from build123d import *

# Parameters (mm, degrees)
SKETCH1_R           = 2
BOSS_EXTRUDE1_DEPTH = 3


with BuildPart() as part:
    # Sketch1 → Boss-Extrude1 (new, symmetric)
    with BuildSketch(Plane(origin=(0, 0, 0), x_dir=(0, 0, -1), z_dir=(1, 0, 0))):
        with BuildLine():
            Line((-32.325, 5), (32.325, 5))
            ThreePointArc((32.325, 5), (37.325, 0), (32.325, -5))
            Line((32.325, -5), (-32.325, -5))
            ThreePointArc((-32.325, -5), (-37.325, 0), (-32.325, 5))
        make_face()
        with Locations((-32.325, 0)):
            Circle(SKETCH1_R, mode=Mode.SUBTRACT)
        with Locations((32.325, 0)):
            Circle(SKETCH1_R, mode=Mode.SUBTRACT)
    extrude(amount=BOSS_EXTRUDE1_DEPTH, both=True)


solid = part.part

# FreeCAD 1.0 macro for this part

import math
import FreeCAD as App
import Part
import Sketcher

doc = App.newDocument("Part")
params = doc.addObject("Spreadsheet::Sheet", "Params")
for row, (alias, value) in enumerate([
    ("sketch1_diameter", "4 mm"),
    ("sketch1_radius", "5 mm"),
    ("sketch1_height", "64.65 mm"),
    ("pad1_length", "6 mm"),
], start=1):
    params.set(f"A{row}", alias)
    params.set(f"B{row}", "=" + value)
    params.setAlias(f"B{row}", alias)

body = doc.addObject("PartDesign::Body", "Body")

sketch1 = body.newObject("Sketcher::SketchObject", "Sketch")
sketch1.AttachmentSupport = (doc.getObject("YZ_Plane"), [""])
sketch1.MapMode = "FlatFace"
sketch1.addGeometry(Part.LineSegment(App.Vector(5, -32.325, 0), App.Vector(5, 32.325, 0)), False)
sketch1.addGeometry(Part.ArcOfCircle(Part.Circle(App.Vector(0, 32.325, 0), App.Vector(0, 0, 1), 5), math.radians(0), math.radians(180)), False)
sketch1.addGeometry(Part.LineSegment(App.Vector(-5, 32.325, 0), App.Vector(-5, -32.325, 0)), False)
sketch1.addGeometry(Part.ArcOfCircle(Part.Circle(App.Vector(0, -32.325, 0), App.Vector(0, 0, 1), 5), math.radians(180), math.radians(360)), False)
sketch1.addGeometry(Part.Circle(App.Vector(0, -32.325, 0), App.Vector(0, 0, 1), 2), False)
sketch1.addGeometry(Part.Circle(App.Vector(0, 32.325, 0), App.Vector(0, 0, 1), 2), False)
sketch1.addConstraint(Sketcher.Constraint("Tangent", 0, 2, 1, 1))
sketch1.addConstraint(Sketcher.Constraint("Tangent", 1, 2, 2, 1))
sketch1.addConstraint(Sketcher.Constraint("Tangent", 2, 2, 3, 1))
sketch1.addConstraint(Sketcher.Constraint("Tangent", 3, 2, 0, 1))
sketch1.addConstraint(Sketcher.Constraint("Vertical", 0))
sketch1.addConstraint(Sketcher.Constraint("Vertical", 2))
sketch1.addConstraint(Sketcher.Constraint("Coincident", 4, 3, 3, 3))
sketch1.addConstraint(Sketcher.Constraint("Coincident", 5, 3, 1, 3))
sketch1.addConstraint(Sketcher.Constraint("Equal", 4, 5))
sketch1.addConstraint(Sketcher.Constraint("Symmetric", 1, 3, 3, 3, -1, 1))
sketch1.addConstraint(Sketcher.Constraint("Diameter", 4, 4.0))
sketch1.addConstraint(Sketcher.Constraint("Radius", 1, 5.0))
sketch1.addConstraint(Sketcher.Constraint("DistanceY", 0, 1, 0, 2, 64.65))
sketch1.setExpression("Constraints[10]", "Params.sketch1_diameter")
sketch1.setExpression("Constraints[11]", "Params.sketch1_radius")
sketch1.setExpression("Constraints[12]", "Params.sketch1_height")
pad1 = body.newObject("PartDesign::Pad", "Pad")
pad1.Profile = sketch1
pad1.setExpression("Length", "Params.pad1_length")
pad1.Midplane = True

doc.recompute()
